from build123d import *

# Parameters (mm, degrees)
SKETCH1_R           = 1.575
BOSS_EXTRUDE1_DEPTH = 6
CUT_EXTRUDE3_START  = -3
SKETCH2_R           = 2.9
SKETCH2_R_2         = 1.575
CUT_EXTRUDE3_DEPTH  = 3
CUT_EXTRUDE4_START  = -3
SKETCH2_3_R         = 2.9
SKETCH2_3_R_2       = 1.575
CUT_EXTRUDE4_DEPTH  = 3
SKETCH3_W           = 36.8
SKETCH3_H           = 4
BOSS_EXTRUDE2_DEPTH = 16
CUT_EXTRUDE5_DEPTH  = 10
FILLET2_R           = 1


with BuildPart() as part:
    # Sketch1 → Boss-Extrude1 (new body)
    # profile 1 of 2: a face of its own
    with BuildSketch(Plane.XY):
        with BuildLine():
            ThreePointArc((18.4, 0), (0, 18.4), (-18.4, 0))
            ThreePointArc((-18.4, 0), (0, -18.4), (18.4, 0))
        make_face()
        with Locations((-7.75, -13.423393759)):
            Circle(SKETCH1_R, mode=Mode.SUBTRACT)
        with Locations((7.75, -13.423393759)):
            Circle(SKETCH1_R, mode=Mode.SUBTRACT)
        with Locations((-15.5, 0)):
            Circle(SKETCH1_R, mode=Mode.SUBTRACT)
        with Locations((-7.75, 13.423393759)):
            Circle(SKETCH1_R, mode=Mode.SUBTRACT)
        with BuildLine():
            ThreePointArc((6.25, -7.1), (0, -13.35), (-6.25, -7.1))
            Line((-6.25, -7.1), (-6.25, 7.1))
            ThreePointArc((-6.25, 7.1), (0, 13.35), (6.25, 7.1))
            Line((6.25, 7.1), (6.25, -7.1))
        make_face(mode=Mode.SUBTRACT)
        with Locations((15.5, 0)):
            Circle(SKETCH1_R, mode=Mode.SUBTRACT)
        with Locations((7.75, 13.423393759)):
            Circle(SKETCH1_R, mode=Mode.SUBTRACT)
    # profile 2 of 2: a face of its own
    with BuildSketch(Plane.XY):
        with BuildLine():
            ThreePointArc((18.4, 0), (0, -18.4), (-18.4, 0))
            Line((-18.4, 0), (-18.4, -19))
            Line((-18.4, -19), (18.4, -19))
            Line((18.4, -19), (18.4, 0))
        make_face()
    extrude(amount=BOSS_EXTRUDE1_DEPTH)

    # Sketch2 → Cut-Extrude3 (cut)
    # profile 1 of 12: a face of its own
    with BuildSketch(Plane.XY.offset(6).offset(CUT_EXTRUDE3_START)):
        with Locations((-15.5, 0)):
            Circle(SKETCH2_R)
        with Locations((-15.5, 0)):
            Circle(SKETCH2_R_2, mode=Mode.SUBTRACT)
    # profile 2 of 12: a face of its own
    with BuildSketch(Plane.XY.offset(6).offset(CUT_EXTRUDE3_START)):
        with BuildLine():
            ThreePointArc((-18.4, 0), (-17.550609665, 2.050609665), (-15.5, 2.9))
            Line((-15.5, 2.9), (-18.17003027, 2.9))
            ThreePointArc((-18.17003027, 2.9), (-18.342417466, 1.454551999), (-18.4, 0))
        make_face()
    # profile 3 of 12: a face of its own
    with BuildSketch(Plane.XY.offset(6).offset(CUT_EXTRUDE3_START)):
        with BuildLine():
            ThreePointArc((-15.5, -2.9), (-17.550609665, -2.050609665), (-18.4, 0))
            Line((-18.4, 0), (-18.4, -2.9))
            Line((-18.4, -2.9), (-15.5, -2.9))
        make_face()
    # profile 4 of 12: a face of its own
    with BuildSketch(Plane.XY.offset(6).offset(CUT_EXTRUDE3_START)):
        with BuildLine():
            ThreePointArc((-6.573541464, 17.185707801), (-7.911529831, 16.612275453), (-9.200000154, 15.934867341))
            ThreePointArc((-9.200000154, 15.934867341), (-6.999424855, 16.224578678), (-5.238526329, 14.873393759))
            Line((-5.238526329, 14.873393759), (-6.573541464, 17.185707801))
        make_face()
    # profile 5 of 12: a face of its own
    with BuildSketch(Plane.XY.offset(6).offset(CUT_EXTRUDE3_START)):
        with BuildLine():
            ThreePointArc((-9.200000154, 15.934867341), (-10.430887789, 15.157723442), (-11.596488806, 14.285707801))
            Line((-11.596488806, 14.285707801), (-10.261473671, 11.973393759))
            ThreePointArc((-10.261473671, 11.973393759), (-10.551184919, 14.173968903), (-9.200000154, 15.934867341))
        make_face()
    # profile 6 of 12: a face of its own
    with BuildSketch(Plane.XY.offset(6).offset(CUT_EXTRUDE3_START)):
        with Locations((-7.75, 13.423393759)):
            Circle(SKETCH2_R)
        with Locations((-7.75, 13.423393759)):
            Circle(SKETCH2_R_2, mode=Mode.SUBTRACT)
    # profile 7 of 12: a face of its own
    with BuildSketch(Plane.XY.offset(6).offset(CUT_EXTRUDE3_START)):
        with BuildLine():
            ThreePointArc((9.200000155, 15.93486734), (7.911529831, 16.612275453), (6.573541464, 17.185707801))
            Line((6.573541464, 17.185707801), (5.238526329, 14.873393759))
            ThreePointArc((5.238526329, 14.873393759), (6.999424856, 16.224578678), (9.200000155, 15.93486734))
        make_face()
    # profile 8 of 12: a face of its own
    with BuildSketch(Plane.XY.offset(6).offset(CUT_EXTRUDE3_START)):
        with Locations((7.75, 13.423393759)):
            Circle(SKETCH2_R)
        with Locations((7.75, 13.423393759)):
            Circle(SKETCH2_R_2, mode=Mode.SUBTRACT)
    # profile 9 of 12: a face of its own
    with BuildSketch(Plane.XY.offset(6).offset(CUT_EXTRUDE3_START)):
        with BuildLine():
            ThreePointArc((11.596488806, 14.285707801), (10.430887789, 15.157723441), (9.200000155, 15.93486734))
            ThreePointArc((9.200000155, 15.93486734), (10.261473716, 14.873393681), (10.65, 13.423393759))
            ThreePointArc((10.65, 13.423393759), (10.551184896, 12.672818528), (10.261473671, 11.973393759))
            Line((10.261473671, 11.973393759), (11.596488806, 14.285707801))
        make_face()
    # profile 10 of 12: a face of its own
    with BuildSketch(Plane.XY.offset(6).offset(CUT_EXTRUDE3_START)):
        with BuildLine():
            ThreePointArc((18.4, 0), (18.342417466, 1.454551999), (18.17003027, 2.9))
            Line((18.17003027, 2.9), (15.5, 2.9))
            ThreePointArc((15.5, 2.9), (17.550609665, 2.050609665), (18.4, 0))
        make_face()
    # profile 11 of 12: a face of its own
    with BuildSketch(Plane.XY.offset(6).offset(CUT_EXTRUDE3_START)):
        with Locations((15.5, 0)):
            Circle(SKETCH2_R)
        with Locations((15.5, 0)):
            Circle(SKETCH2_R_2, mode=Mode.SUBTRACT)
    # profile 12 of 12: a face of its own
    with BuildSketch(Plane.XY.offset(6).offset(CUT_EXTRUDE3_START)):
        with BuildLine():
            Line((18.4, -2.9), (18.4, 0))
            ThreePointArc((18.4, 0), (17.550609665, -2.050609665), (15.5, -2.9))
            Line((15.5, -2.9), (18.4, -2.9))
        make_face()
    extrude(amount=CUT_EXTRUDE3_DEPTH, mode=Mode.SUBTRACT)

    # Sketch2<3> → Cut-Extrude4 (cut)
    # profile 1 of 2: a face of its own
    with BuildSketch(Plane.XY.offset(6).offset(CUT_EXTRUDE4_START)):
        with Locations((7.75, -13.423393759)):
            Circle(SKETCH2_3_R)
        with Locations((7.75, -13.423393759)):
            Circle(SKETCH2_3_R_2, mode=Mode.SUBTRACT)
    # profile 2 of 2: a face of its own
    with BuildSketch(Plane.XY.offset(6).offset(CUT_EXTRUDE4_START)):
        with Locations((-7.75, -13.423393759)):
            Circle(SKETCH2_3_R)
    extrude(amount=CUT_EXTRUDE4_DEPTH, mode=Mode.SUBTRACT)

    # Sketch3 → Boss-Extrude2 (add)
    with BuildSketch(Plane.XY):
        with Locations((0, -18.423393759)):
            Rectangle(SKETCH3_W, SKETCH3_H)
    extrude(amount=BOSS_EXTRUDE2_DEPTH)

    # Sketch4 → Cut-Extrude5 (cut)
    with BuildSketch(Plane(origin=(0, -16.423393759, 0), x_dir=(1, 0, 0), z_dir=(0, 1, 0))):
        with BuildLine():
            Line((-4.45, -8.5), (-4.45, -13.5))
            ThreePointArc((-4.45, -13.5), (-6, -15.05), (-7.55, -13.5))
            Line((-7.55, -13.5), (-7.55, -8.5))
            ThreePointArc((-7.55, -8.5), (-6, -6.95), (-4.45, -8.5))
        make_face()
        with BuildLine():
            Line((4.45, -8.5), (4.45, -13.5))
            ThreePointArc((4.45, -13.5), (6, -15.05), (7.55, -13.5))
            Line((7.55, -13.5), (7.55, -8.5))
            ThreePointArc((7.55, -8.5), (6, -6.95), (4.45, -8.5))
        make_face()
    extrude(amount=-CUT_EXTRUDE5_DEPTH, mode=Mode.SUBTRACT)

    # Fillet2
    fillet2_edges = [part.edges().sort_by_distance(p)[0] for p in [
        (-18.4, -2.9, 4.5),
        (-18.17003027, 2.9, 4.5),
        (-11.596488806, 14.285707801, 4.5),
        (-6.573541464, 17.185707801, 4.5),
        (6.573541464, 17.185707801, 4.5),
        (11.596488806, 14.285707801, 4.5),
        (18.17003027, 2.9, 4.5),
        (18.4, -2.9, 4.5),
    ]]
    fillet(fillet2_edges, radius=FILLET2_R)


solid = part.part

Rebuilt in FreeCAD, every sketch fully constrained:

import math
import FreeCAD as App
import Part
import Sketcher
from FreeCAD import Vector
Q = App.Units.Quantity


def edges_at(feature, points):
    """Names of the edges that pass closest to the given points."""
    edges = feature.Shape.Edges
    near = lambda p: min(range(len(edges)), key=lambda i: edges[i].distToShape(Part.Vertex(*p))[0])
    return sorted({f"Edge{near(p) + 1}" for p in points})

doc = App.newDocument("Part")
params = doc.addObject("Spreadsheet::Sheet", "Params")
for row, (alias, value) in enumerate([
    ("sketch1_radius", "18.4 mm"),
    ("sketch1_diameter", "3.15 mm"),
    ("sketch1_height", "19 mm"),
    ("sketch1_radius2", "6.25 mm"),
    ("sketch1_height2", "14.2 mm"),
    ("pad1_length", "6 mm"),
    ("sketch2_radius", "18.4 mm"),
    ("sketch2_radius2", "2.9 mm"),
    ("sketch2_diameter", "3.15 mm"),
    ("pocket1_length", "3 mm"),
    ("sketch3_diameter", "5.8 mm"),
    ("sketch3_diameter2", "3.15 mm"),
    ("pocket2_length", "3 mm"),
    ("sketch4_height", "4 mm"),
    ("sketch4_width", "36.8 mm"),
    ("pad2_length", "16 mm"),
    ("sketch5_height", "5 mm"),
    ("sketch5_radius", "1.55 mm"),
    ("pocket3_length", "10 mm"),
    ("fillet_radius", "1 mm"),
], start=1):
    params.set(f"A{row}", alias)
    params.set(f"B{row}", "=" + value)
    params.setAlias(f"B{row}", alias)

body = doc.addObject("PartDesign::Body", "Body")

# Sketch on XY plane
sketch1 = body.newObject("Sketcher::SketchObject", "Sketch")
sketch1.AttachmentSupport = (doc.getObject("XY_Plane"), [""])
sketch1.MapMode = "FlatFace"
sketch1.addGeometry([
    Part.ArcOfCircle(Part.Circle(Vector(0, 0, 0), Vector(0, 0, 1), 18.4), math.radians(0), math.radians(180)),  # 0
    Part.LineSegment(Vector(-18.4, 0, 0), Vector(-18.4, -19, 0)),  # 1
    Part.LineSegment(Vector(-18.4, -19, 0), Vector(18.4, -19, 0)),  # 2
    Part.LineSegment(Vector(18.4, -19, 0), Vector(18.4, 0, 0)),  # 3
    Part.Circle(Vector(-7.8, -13.4, 0), Vector(0, 0, 1), 1.6),  # 4
    Part.Circle(Vector(-15.5, 0, 0), Vector(0, 0, 1), 1.6),  # 5
    Part.Circle(Vector(7.8, -13.4, 0), Vector(0, 0, 1), 1.6),  # 6
    Part.LineSegment(Vector(6.2, 7.1, 0), Vector(6.2, -7.1, 0)),  # 7
    Part.ArcOfCircle(Part.Circle(Vector(0, -7.1, 0), Vector(0, 0, 1), 6.2), math.radians(180), math.radians(360)),  # 8
    Part.LineSegment(Vector(-6.2, -7.1, 0), Vector(-6.2, 7.1, 0)),  # 9
    Part.ArcOfCircle(Part.Circle(Vector(0, 7.1, 0), Vector(0, 0, 1), 6.2), math.radians(0), math.radians(180)),  # 10
    Part.Circle(Vector(15.5, 0, 0), Vector(0, 0, 1), 1.6),  # 11
    Part.Circle(Vector(-7.8, 13.4, 0), Vector(0, 0, 1), 1.6),  # 12
    Part.Circle(Vector(7.8, 13.4, 0), Vector(0, 0, 1), 1.6),  # 13
], False)
sketch1.addConstraint([
    Sketcher.Constraint("Tangent", 0, 2, 1, 1),
    Sketcher.Constraint("Coincident", 1, 2, 2, 1),
    Sketcher.Constraint("Coincident", 2, 2, 3, 1),
    Sketcher.Constraint("Tangent", 3, 2, 0, 1),
    Sketcher.Constraint("Tangent", 7, 2, 8, 2),
    Sketcher.Constraint("Tangent", 8, 1, 9, 1),
    Sketcher.Constraint("Tangent", 9, 2, 10, 2),
    Sketcher.Constraint("Tangent", 10, 1, 7, 1),
    Sketcher.Constraint("Vertical", 1),
    Sketcher.Constraint("Horizontal", 2),
    Sketcher.Constraint("Vertical", 3),
    Sketcher.Constraint("Vertical", 7),
    Sketcher.Constraint("Vertical", 9),
    Sketcher.Constraint("Coincident", 0, 3, -1, 1),
    Sketcher.Constraint("Equal", 4, 5),
    Sketcher.Constraint("Equal", 5, 6),
    Sketcher.Constraint("Equal", 6, 11),
    Sketcher.Constraint("Equal", 11, 12),
    Sketcher.Constraint("Equal", 12, 13),
    Sketcher.Constraint("Symmetric", 8, 3, 10, 3, -1, 1),
    Sketcher.Constraint("Symmetric", 5, 3, 11, 3, -1, 1),
    Sketcher.Constraint("Symmetric", 6, 3, 12, 3, -1, 1),
    Sketcher.Constraint("Symmetric", 4, 3, 13, 3, -1, 1),
    Sketcher.Constraint("Symmetric", 4, 3, 6, 3, -2),
    Sketcher.Constraint("PointOnObject", 5, 3, -1),
    Sketcher.Constraint("Radius", 0, 18.4),
    Sketcher.Constraint("Diameter", 4, 3.15),
    Sketcher.Constraint("DistanceY", 1, 2, 1, 1, 19.0),
    Sketcher.Constraint("Radius", 8, 6.25),
    Sketcher.Constraint("DistanceY", 7, 2, 7, 1, 14.2),
    Sketcher.Constraint("DistanceX", 5, 3, -1, 1, 15.5),
    Sketcher.Constraint("DistanceX", 4, 3, 6, 3, 15.5),
    Sketcher.Constraint("DistanceY", 4, 3, -1, 1, 13.423394),
])
sketch1.setExpression("Constraints[25]", "Params.sketch1_radius")
sketch1.setExpression("Constraints[26]", "Params.sketch1_diameter")
sketch1.setExpression("Constraints[27]", "Params.sketch1_height")
sketch1.setExpression("Constraints[28]", "Params.sketch1_radius2")
sketch1.setExpression("Constraints[29]", "Params.sketch1_height2")
pad1 = body.newObject("PartDesign::Pad", "Pad")
pad1.Profile = sketch1
pad1.setExpression("Length", "Params.pad1_length")

# Sketch on XY plane
sketch2 = body.newObject("Sketcher::SketchObject", "Sketch001")
sketch2.AttachmentSupport = (doc.getObject("XY_Plane"), [""])
sketch2.MapMode = "FlatFace"
sketch2.AttachmentOffset = App.Placement(Vector(0, 0, 3), App.Rotation())
sketch2.addGeometry([
    Part.LineSegment(Vector(-15.5, 2.9, 0), Vector(-18.2, 2.9, 0)),  # 0
    Part.ArcOfCircle(Part.Circle(Vector(0, 0, 0), Vector(0, 0, 1), 18.4), math.radians(170.93), math.radians(180)),  # 1
    Part.LineSegment(Vector(-18.4, 0, 0), Vector(-18.4, -2.9, 0)),  # 2
    Part.LineSegment(Vector(-18.4, -2.9, 0), Vector(-15.5, -2.9, 0)),  # 3
    Part.ArcOfCircle(Part.Circle(Vector(-15.5, 0, 0), Vector(0, 0, 1), 2.9), math.radians(-90), math.radians(90)),  # 4
    Part.Circle(Vector(-15.5, 0, 0), Vector(0, 0, 1), 1.6),  # 5
    Part.ArcOfCircle(Part.Circle(Vector(0, 0, 0), Vector(0, 0, 1), 18.4), math.radians(110.93), math.radians(120)),  # 6
    Part.ArcOfCircle(Part.Circle(Vector(0, 0, 0), Vector(0, 0, 1), 18.4), math.radians(120), math.radians(129.07)),  # 7
    Part.LineSegment(Vector(-11.6, 14.3, 0), Vector(-10.3, 12, 0)),  # 8
    Part.ArcOfCircle(Part.Circle(Vector(-7.8, 13.4, 0), Vector(0, 0, 1), 2.9), math.radians(-150), math.radians(30)),  # 9
    Part.LineSegment(Vector(-5.2, 14.9, 0), Vector(-6.6, 17.2, 0)),  # 10
    Part.Circle(Vector(-7.8, 13.4, 0), Vector(0, 0, 1), 1.6),  # 11
    Part.ArcOfCircle(Part.Circle(Vector(0, 0, 0), Vector(0, 0, 1), 18.4), math.radians(60), math.radians(69.07)),  # 12
    Part.LineSegment(Vector(6.6, 17.2, 0), Vector(5.2, 14.9, 0)),  # 13
    Part.ArcOfCircle(Part.Circle(Vector(7.8, 13.4, 0), Vector(0, 0, 1), 2.9), math.radians(150), math.radians(330)),  # 14
    Part.LineSegment(Vector(10.3, 12, 0), Vector(11.6, 14.3, 0)),  # 15
    Part.ArcOfCircle(Part.Circle(Vector(0, 0, 0), Vector(0, 0, 1), 18.4), math.radians(50.93), math.radians(60)),  # 16
    Part.Circle(Vector(7.8, 13.4, 0), Vector(0, 0, 1), 1.6),  # 17
    Part.ArcOfCircle(Part.Circle(Vector(0, 0, 0), Vector(0, 0, 1), 18.4), math.radians(0), math.radians(9.07)),  # 18
    Part.LineSegment(Vector(18.2, 2.9, 0), Vector(15.5, 2.9, 0)),  # 19
    Part.ArcOfCircle(Part.Circle(Vector(15.5, 0, 0), Vector(0, 0, 1), 2.9), math.radians(90), math.radians(270)),  # 20
    Part.LineSegment(Vector(15.5, -2.9, 0), Vector(18.4, -2.9, 0)),  # 21
    Part.LineSegment(Vector(18.4, -2.9, 0), Vector(18.4, 0, 0)),  # 22
    Part.Circle(Vector(15.5, 0, 0), Vector(0, 0, 1), 1.6),  # 23
], False)
sketch2.addConstraint([
    Sketcher.Constraint("Coincident", 0, 2, 1, 1),
    Sketcher.Constraint("Tangent", 1, 2, 2, 1),
    Sketcher.Constraint("Coincident", 2, 2, 3, 1),
    Sketcher.Constraint("Tangent", 3, 2, 4, 1),
    Sketcher.Constraint("Tangent", 4, 2, 0, 1),
    Sketcher.Constraint("Tangent", 6, 2, 7, 1),
    Sketcher.Constraint("Coincident", 7, 2, 8, 1),
    Sketcher.Constraint("Tangent", 8, 2, 9, 1),
    Sketcher.Constraint("Tangent", 9, 2, 10, 1),
    Sketcher.Constraint("Coincident", 10, 2, 6, 1),
    Sketcher.Constraint("Coincident", 12, 2, 13, 1),
    Sketcher.Constraint("Tangent", 13, 2, 14, 1),
    Sketcher.Constraint("Tangent", 14, 2, 15, 1),
    Sketcher.Constraint("Coincident", 15, 2, 16, 1),
    Sketcher.Constraint("Tangent", 16, 2, 12, 1),
    Sketcher.Constraint("Coincident", 18, 2, 19, 1),
    Sketcher.Constraint("Tangent", 19, 2, 20, 1),
    Sketcher.Constraint("Tangent", 20, 2, 21, 1),
    Sketcher.Constraint("Coincident", 21, 2, 22, 1),
    Sketcher.Constraint("Tangent", 22, 2, 18, 1),
    Sketcher.Constraint("Horizontal", 0),
    Sketcher.Constraint("Vertical", 2),
    Sketcher.Constraint("Horizontal", 3),
    Sketcher.Constraint("Horizontal", 19),
    Sketcher.Constraint("Horizontal", 21),
    Sketcher.Constraint("Vertical", 22),
    Sketcher.Constraint("Coincident", 1, 3, -1, 1),
    Sketcher.Constraint("Coincident", 6, 3, -1, 1),
    Sketcher.Constraint("Coincident", 12, 3, -1, 1),
    Sketcher.Constraint("Coincident", 18, 3, -1, 1),
    Sketcher.Constraint("Coincident", 5, 3, 4, 3),
    Sketcher.Constraint("Coincident", 11, 3, 9, 3),
    Sketcher.Constraint("Coincident", 17, 3, 14, 3),
    Sketcher.Constraint("Coincident", 23, 3, 20, 3),
    Sketcher.Constraint("Equal", 1, 6),
    Sketcher.Constraint("Equal", 6, 7),
    Sketcher.Constraint("Equal", 4, 9),
    Sketcher.Constraint("Equal", 5, 11),
    Sketcher.Constraint("Equal", 7, 12),
    Sketcher.Constraint("Equal", 9, 14),
    Sketcher.Constraint("Equal", 12, 16),
    Sketcher.Constraint("Equal", 11, 17),
    Sketcher.Constraint("Equal", 16, 18),
    Sketcher.Constraint("Equal", 14, 20),
    Sketcher.Constraint("Equal", 17, 23),
    Sketcher.Constraint("Symmetric", 4, 3, 20, 3, -1, 1),
    Sketcher.Constraint("Symmetric", 9, 3, 14, 3, -2),
    Sketcher.Constraint("PointOnObject", 4, 3, -1),
    Sketcher.Constraint("Parallel", 8, 10),
    Sketcher.Constraint("Parallel", 13, 15),
    Sketcher.Constraint("Horizontal", 10, 2, 12, 2),
    Sketcher.Constraint("Horizontal", 6, 2, 16, 2),
    Sketcher.Constraint("Equal", 21, 2),
    Sketcher.Constraint("Equal", 8, 10),
    Sketcher.Constraint("Radius", 1, 18.4),
    Sketcher.Constraint("Radius", 4, 2.9),
    Sketcher.Constraint("Diameter", 5, 3.15),
    Sketcher.Constraint("Angle", 8, Q("-60 deg")),
    Sketcher.Constraint("DistanceX", 6, 2, -1, 1, 9.2),
    Sketcher.Constraint("DistanceX", 9, 3, 14, 3, 15.5),
])
sketch2.setExpression("Constraints[54]", "Params.sketch2_radius")
sketch2.setExpression("Constraints[55]", "Params.sketch2_radius2")
sketch2.setExpression("Constraints[56]", "Params.sketch2_diameter")
pocket1 = body.newObject("PartDesign::Pocket", "Pocket")
pocket1.Profile = sketch2
pocket1.setExpression("Length", "Params.pocket1_length")
pocket1.Reversed = True

# Sketch on XY plane
sketch3 = body.newObject("Sketcher::SketchObject", "Sketch002")
sketch3.AttachmentSupport = (doc.getObject("XY_Plane"), [""])
sketch3.MapMode = "FlatFace"
sketch3.AttachmentOffset = App.Placement(Vector(0, 0, 3), App.Rotation())
sketch3.addGeometry([
    Part.Circle(Vector(7.8, -13.4, 0), Vector(0, 0, 1), 2.9),
    Part.Circle(Vector(7.8, -13.4, 0), Vector(0, 0, 1), 1.6),
    Part.Circle(Vector(-7.8, -13.4, 0), Vector(0, 0, 1), 2.9),
], False)
sketch3.addConstraint([
    Sketcher.Constraint("Coincident", 1, 3, 0, 3),
    Sketcher.Constraint("Equal", 0, 2),
    Sketcher.Constraint("Symmetric", 0, 3, 2, 3, -2),
    Sketcher.Constraint("Diameter", 0, 5.8),
    Sketcher.Constraint("Diameter", 1, 3.15),
    Sketcher.Constraint("DistanceX", 2, 3, 0, 3, 15.5),
    Sketcher.Constraint("DistanceY", 0, 3, -1, 1, 13.423394),
])
sketch3.setExpression("Constraints[3]", "Params.sketch3_diameter")
sketch3.setExpression("Constraints[4]", "Params.sketch3_diameter2")
pocket2 = body.newObject("PartDesign::Pocket", "Pocket001")
pocket2.Profile = sketch3
pocket2.setExpression("Length", "Params.pocket2_length")
pocket2.Reversed = True

# Sketch on XY plane
sketch4 = body.newObject("Sketcher::SketchObject", "Sketch003")
sketch4.AttachmentSupport = (doc.getObject("XY_Plane"), [""])
sketch4.MapMode = "FlatFace"
sketch4.addGeometry([
    Part.LineSegment(Vector(-18.4, -16.4, 0), Vector(-18.4, -20.4, 0)),
    Part.LineSegment(Vector(-18.4, -20.4, 0), Vector(18.4, -20.4, 0)),
    Part.LineSegment(Vector(18.4, -20.4, 0), Vector(18.4, -16.4, 0)),
    Part.LineSegment(Vector(18.4, -16.4, 0), Vector(-18.4, -16.4, 0)),
], False)
sketch4.addConstraint([
    Sketcher.Constraint("Coincident", 0, 2, 1, 1),
    Sketcher.Constraint("Coincident", 1, 2, 2, 1),
    Sketcher.Constraint("Coincident", 2, 2, 3, 1),
    Sketcher.Constraint("Coincident", 3, 2, 0, 1),
    Sketcher.Constraint("Vertical", 0),
    Sketcher.Constraint("Horizontal", 1),
    Sketcher.Constraint("Vertical", 2),
    Sketcher.Constraint("Horizontal", 3),
    Sketcher.Constraint("DistanceY", 0, 2, 0, 1, 4.0),
    Sketcher.Constraint("DistanceX", 1, 1, 1, 2, 36.8),
    Sketcher.Constraint("DistanceX", 0, 2, -1, 1, 18.4),
    Sketcher.Constraint("DistanceY", 0, 2, -1, 1, 20.423394),
])
sketch4.setExpression("Constraints[8]", "Params.sketch4_height")
sketch4.setExpression("Constraints[9]", "Params.sketch4_width")
pad2 = body.newObject("PartDesign::Pad", "Pad001")
pad2.Profile = sketch4
pad2.setExpression("Length", "Params.pad2_length")

# Sketch on XZ plane
sketch5 = body.newObject("Sketcher::SketchObject", "Sketch004")
sketch5.AttachmentSupport = (doc.getObject("XZ_Plane"), [""])
sketch5.MapMode = "FlatFace"
sketch5.AttachmentOffset = App.Placement(Vector(0, 0, 16.423394), App.Rotation())
sketch5.addGeometry([
    Part.LineSegment(Vector(-4.5, 13.5, 0), Vector(-4.5, 8.5, 0)),  # 0
    Part.ArcOfCircle(Part.Circle(Vector(-6, 8.5, 0), Vector(0, 0, 1), 1.6), math.radians(180), math.radians(360)),  # 1
    Part.LineSegment(Vector(-7.5, 8.5, 0), Vector(-7.5, 13.5, 0)),  # 2
    Part.ArcOfCircle(Part.Circle(Vector(-6, 13.5, 0), Vector(0, 0, 1), 1.6), math.radians(0), math.radians(180)),  # 3
    Part.LineSegment(Vector(4.5, 8.5, 0), Vector(4.5, 13.5, 0)),  # 4
    Part.ArcOfCircle(Part.Circle(Vector(6, 13.5, 0), Vector(0, 0, 1), 1.6), math.radians(0), math.radians(180)),  # 5
    Part.LineSegment(Vector(7.5, 13.5, 0), Vector(7.5, 8.5, 0)),  # 6
    Part.ArcOfCircle(Part.Circle(Vector(6, 8.5, 0), Vector(0, 0, 1), 1.6), math.radians(180), math.radians(360)),  # 7
], False)
sketch5.addConstraint([
    Sketcher.Constraint("Tangent", 0, 2, 1, 2),
    Sketcher.Constraint("Tangent", 1, 1, 2, 1),
    Sketcher.Constraint("Tangent", 2, 2, 3, 2),
    Sketcher.Constraint("Tangent", 3, 1, 0, 1),
    Sketcher.Constraint("Tangent", 4, 2, 5, 2),
    Sketcher.Constraint("Tangent", 5, 1, 6, 1),
    Sketcher.Constraint("Tangent", 6, 2, 7, 2),
    Sketcher.Constraint("Tangent", 7, 1, 4, 1),
    Sketcher.Constraint("Vertical", 0),
    Sketcher.Constraint("Vertical", 2),
    Sketcher.Constraint("Vertical", 4),
    Sketcher.Constraint("Vertical", 6),
    Sketcher.Constraint("Equal", 3, 5),
    Sketcher.Constraint("Symmetric", 3, 3, 5, 3, -2),
    Sketcher.Constraint("Horizontal", 1, 3, 7, 3),
    Sketcher.Constraint("DistanceY", 0, 2, 0, 1, 5.0),
    Sketcher.Constraint("Radius", 1, 1.55),
    Sketcher.Constraint("DistanceX", 1, 3, -1, 1, 6.0),
    Sketcher.Constraint("DistanceY", -1, 1, 1, 3, 8.5),
])
sketch5.setExpression("Constraints[15]", "Params.sketch5_height")
sketch5.setExpression("Constraints[16]", "Params.sketch5_radius")
pocket3 = body.newObject("PartDesign::Pocket", "Pocket002")
pocket3.Profile = sketch5
pocket3.setExpression("Length", "Params.pocket3_length")
pocket3.Reversed = True
doc.recompute()

fillet = body.newObject("PartDesign::Fillet", "Fillet")
fillet.Base = (pocket3, edges_at(pocket3, [
    (-18.4, -2.9, 4.5),
    (-18.17, 2.9, 4.5),
    (-11.596, 14.286, 4.5),
    (-6.574, 17.186, 4.5),
    (6.574, 17.186, 4.5),
    (11.596, 14.286, 4.5),
    (18.17, 2.9, 4.5),
    (18.4, -2.9, 4.5),
]))
fillet.setExpression("Radius", "Params.fillet_radius")

doc.recompute()
